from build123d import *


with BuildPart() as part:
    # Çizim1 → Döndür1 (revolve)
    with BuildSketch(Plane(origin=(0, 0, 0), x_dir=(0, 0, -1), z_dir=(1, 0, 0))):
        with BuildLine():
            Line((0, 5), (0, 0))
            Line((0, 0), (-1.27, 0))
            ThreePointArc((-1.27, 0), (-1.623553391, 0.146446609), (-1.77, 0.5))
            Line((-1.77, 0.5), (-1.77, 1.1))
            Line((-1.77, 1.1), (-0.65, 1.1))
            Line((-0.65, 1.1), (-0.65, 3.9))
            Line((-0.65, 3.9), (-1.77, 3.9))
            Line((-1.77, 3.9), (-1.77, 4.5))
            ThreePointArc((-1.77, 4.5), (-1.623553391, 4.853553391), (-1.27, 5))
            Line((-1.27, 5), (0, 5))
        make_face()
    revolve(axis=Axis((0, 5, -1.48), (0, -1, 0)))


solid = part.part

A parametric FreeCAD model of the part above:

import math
import FreeCAD as App
import Part
import Sketcher
from FreeCAD import Vector
Q = App.Units.Quantity

doc = App.newDocument("Part")
params = doc.addObject("Spreadsheet::Sheet", "Params")
for row, (alias, value) in enumerate([
    ("sketch1_radius", "0.5 mm"),
    ("sketch1_width", "5 mm"),
    ("sketch1_width2", "0.6 mm"),
    ("sketch1_height", "1.27 mm"),
    ("sketch1_height2", "1.12 mm"),
    ("revolution_angle", "360 deg"),
], start=1):
    params.set(f"A{row}", alias)
    params.set(f"B{row}", "=" + value)
    params.setAlias(f"B{row}", alias)

body = doc.addObject("PartDesign::Body", "Body")

# Sketch on YZ plane
sketch1 = doc.addObject("Sketcher::SketchObject", "Sketch")
body.addObject(sketch1)
sketch1.AttachmentSupport = (doc.YZ_Plane, [""])
sketch1.MapMode = "FlatFace"
sketch1.addGeometry(Part.LineSegment(Vector(0, 0, 0), Vector(5, 0, 0)), False)
sketch1.addGeometry(Part.LineSegment(Vector(5, 0, 0), Vector(5, 1.27, 0)), False)
sketch1.addGeometry(Part.ArcOfCircle(Part.Circle(Vector(4.5, 1.27, 0), Vector(0, 0, 1), 0.5), math.radians(0), math.radians(90)), False)
sketch1.addGeometry(Part.LineSegment(Vector(4.5, 1.77, 0), Vector(3.9, 1.77, 0)), False)
sketch1.addGeometry(Part.LineSegment(Vector(3.9, 1.77, 0), Vector(3.9, 0.65, 0)), False)
sketch1.addGeometry(Part.LineSegment(Vector(3.9, 0.65, 0), Vector(1.1, 0.65, 0)), False)
sketch1.addGeometry(Part.LineSegment(Vector(1.1, 0.65, 0), Vector(1.1, 1.77, 0)), False)
sketch1.addGeometry(Part.LineSegment(Vector(1.1, 1.77, 0), Vector(0.5, 1.77, 0)), False)
sketch1.addGeometry(Part.ArcOfCircle(Part.Circle(Vector(0.5, 1.27, 0), Vector(0, 0, 1), 0.5), math.radians(90), math.radians(180)), False)
sketch1.addGeometry(Part.LineSegment(Vector(0, 1.27, 0), Vector(0, 0, 0)), False)
sketch1.addGeometry(Part.LineSegment(Vector(5, -1.48, 0), Vector(0, -1.48, 0)), True)  # axis
sketch1.addConstraint(Sketcher.Constraint("Coincident", 0, 2, 1, 1))
sketch1.addConstraint(Sketcher.Constraint("Tangent", 1, 2, 2, 1))
sketch1.addConstraint(Sketcher.Constraint("Tangent", 2, 2, 3, 1))
sketch1.addConstraint(Sketcher.Constraint("Coincident", 3, 2, 4, 1))
sketch1.addConstraint(Sketcher.Constraint("Coincident", 4, 2, 5, 1))
sketch1.addConstraint(Sketcher.Constraint("Coincident", 5, 2, 6, 1))
sketch1.addConstraint(Sketcher.Constraint("Coincident", 6, 2, 7, 1))
sketch1.addConstraint(Sketcher.Constraint("Tangent", 7, 2, 8, 1))
sketch1.addConstraint(Sketcher.Constraint("Tangent", 8, 2, 9, 1))
sketch1.addConstraint(Sketcher.Constraint("Coincident", 9, 2, 0, 1))
sketch1.addConstraint(Sketcher.Constraint("Horizontal", 0))
sketch1.addConstraint(Sketcher.Constraint("Vertical", 1))
sketch1.addConstraint(Sketcher.Constraint("Horizontal", 3))
sketch1.addConstraint(Sketcher.Constraint("Vertical", 4))
sketch1.addConstraint(Sketcher.Constraint("Horizontal", 5))
sketch1.addConstraint(Sketcher.Constraint("Vertical", 6))
sketch1.addConstraint(Sketcher.Constraint("Horizontal", 7))
sketch1.addConstraint(Sketcher.Constraint("Vertical", 9))
sketch1.addConstraint(Sketcher.Constraint("Horizontal", 10))
sketch1.addConstraint(Sketcher.Constraint("Coincident", 9, 2, -1, 1))
sketch1.addConstraint(Sketcher.Constraint("Equal", 2, 8))
sketch1.addConstraint(Sketcher.Constraint("PointOnObject", 10, 2, -2))
sketch1.addConstraint(Sketcher.Constraint("Horizontal", 2, 3, 8, 3))
sketch1.addConstraint(Sketcher.Constraint("Vertical", 1, 2, 10, 1))
sketch1.addConstraint(Sketcher.Constraint("Equal", 3, 7))
sketch1.addConstraint(Sketcher.Constraint("Radius", 2, Q("0.5 mm")))
sketch1.addConstraint(Sketcher.Constraint("DistanceX", 0, 1, 0, 2, Q("5 mm")))
sketch1.addConstraint(Sketcher.Constraint("DistanceX", 3, 2, 3, 1, Q("0.6 mm")))
sketch1.addConstraint(Sketcher.Constraint("DistanceY", 1, 1, 1, 2, Q("1.27 mm")))
sketch1.addConstraint(Sketcher.Constraint("DistanceY", 4, 2, 4, 1, Q("1.12 mm")))
sketch1.addConstraint(Sketcher.Constraint("DistanceY", 10, 1, -1, 1, Q("1.48 mm")))
sketch1.setExpression("Constraints[25]", "Params.sketch1_radius")
sketch1.setExpression("Constraints[26]", "Params.sketch1_width")
sketch1.setExpression("Constraints[27]", "Params.sketch1_width2")
sketch1.setExpression("Constraints[28]", "Params.sketch1_height")
sketch1.setExpression("Constraints[29]", "Params.sketch1_height2")
revolution = doc.addObject("PartDesign::Revolution", "Revolution")
body.addObject(revolution)
revolution.Profile = sketch1
revolution.ReferenceAxis = (sketch1, ["Axis0"])
revolution.setExpression("Angle", "Params.revolution_angle")

doc.recompute()
